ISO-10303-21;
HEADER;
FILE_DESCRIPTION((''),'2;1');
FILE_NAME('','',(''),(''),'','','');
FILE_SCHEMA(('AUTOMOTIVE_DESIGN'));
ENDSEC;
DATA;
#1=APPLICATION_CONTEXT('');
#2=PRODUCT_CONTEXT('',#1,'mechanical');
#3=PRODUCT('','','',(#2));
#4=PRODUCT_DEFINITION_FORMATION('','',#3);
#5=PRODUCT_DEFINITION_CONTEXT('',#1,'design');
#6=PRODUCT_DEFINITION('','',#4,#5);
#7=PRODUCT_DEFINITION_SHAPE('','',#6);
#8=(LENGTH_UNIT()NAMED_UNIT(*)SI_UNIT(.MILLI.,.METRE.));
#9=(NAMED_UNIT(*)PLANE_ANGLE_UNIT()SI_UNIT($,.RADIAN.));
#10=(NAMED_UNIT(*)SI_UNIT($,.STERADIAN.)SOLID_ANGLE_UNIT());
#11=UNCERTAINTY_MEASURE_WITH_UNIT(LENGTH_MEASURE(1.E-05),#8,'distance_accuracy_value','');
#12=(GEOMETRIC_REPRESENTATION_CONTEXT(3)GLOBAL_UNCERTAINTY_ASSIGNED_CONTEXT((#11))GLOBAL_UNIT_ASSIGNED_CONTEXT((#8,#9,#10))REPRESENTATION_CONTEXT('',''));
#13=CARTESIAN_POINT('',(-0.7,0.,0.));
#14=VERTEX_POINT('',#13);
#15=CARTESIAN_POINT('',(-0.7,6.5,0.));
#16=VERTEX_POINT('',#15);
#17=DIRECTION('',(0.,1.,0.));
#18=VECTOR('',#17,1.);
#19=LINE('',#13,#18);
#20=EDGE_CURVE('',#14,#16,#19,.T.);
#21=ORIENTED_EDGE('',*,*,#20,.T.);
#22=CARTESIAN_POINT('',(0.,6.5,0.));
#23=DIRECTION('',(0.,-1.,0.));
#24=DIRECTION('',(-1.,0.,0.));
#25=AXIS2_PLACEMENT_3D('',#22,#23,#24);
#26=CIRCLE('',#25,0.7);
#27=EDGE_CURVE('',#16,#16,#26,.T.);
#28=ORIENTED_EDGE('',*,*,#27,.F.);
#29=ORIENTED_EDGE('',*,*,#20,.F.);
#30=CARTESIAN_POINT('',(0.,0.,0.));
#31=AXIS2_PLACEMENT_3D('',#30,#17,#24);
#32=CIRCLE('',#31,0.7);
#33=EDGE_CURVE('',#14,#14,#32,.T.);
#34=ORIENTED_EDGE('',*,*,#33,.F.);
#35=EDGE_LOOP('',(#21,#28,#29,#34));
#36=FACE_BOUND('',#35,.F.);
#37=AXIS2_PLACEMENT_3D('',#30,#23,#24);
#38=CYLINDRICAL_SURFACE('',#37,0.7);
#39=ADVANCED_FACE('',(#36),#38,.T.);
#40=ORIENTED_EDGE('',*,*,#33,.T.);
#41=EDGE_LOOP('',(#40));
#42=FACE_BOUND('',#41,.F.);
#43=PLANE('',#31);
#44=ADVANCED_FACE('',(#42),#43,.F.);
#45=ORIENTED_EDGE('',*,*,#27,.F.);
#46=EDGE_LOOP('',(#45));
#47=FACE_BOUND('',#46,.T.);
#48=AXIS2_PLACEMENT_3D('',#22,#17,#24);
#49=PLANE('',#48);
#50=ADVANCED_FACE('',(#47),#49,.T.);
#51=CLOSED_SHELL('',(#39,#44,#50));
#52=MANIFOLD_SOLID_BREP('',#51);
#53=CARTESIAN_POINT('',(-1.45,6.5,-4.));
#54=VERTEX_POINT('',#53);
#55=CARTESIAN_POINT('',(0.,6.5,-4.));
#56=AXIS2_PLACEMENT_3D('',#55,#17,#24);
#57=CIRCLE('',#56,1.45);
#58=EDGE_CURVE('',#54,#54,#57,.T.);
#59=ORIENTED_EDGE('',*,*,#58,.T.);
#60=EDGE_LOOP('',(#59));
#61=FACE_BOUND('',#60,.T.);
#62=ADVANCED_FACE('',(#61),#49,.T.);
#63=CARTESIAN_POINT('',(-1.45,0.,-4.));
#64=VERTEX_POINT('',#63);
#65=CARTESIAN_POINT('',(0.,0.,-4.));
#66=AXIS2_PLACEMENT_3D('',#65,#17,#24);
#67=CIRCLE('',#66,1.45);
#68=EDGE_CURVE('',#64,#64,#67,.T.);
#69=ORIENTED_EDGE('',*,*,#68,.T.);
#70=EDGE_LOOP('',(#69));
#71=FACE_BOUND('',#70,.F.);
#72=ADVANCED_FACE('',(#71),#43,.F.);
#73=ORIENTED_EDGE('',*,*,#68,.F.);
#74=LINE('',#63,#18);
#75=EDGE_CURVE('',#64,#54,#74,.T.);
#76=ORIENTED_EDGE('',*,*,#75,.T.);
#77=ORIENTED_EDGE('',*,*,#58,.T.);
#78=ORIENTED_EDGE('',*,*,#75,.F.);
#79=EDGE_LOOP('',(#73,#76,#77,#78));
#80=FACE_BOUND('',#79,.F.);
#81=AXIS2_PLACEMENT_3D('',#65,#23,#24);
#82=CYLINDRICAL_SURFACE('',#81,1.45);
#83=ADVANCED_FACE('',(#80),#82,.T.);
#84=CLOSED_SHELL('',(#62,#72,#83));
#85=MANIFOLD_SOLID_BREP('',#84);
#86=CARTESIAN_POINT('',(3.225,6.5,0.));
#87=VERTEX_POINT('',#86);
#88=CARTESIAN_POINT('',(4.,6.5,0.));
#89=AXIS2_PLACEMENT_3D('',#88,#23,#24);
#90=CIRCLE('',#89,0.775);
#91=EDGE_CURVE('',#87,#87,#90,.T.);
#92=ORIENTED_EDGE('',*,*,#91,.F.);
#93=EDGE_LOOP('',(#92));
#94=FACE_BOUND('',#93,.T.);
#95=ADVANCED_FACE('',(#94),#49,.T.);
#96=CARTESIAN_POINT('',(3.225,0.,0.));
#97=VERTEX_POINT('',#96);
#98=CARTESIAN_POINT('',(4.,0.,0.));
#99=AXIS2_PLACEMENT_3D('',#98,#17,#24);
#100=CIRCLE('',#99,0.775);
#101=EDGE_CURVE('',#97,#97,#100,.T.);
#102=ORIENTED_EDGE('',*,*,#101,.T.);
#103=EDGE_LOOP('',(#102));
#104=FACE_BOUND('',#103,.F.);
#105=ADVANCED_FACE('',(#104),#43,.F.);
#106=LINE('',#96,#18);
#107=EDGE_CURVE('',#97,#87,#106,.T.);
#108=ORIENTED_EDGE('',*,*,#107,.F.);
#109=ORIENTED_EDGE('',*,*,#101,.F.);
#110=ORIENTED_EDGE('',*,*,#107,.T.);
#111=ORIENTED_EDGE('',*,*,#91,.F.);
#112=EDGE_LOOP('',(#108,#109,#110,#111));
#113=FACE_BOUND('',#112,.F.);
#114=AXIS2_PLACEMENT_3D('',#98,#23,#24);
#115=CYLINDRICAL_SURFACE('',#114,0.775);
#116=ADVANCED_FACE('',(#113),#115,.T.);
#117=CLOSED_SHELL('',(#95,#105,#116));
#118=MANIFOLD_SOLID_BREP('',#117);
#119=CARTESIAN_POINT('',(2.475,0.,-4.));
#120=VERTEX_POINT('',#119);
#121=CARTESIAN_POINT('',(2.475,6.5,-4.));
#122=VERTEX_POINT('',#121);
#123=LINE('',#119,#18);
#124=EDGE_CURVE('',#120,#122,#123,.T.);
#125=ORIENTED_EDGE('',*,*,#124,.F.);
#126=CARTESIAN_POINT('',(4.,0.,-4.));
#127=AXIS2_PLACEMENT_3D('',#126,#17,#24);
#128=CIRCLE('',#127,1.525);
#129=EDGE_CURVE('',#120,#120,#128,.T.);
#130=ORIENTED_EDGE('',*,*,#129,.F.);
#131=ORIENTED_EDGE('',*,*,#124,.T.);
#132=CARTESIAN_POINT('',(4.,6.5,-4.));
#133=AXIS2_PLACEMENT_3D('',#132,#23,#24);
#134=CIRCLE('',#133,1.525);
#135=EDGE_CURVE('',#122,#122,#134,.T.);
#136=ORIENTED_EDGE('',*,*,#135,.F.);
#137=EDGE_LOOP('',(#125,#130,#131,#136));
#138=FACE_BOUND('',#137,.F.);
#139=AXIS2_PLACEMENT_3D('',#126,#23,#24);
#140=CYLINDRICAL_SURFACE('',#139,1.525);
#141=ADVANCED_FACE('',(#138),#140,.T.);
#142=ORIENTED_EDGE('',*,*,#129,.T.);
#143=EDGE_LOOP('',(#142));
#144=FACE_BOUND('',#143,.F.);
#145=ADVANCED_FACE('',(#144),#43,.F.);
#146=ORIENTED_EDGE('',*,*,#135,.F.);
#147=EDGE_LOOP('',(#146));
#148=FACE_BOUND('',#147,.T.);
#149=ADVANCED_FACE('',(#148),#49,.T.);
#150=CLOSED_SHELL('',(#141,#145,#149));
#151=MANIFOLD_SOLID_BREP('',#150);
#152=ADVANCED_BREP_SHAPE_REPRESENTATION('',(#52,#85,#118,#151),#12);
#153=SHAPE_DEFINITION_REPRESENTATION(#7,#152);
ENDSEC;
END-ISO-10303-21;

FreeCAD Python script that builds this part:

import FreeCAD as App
import Part
import Sketcher
from FreeCAD import Vector

doc = App.newDocument("Part")
body = doc.addObject("PartDesign::Body", "Body")
body.AllowCompound = True

# Sketch on XZ plane
sketch1 = body.newObject("Sketcher::SketchObject", "Sketch")
sketch1.AttachmentSupport = (doc.getObject("XZ_Plane"), [""])
sketch1.MapMode = "FlatFace"
sketch1.addGeometry([
    Part.Circle(Vector(0, 0, 0), Vector(0, 0, 1), 0.7),
    Part.Circle(Vector(4, -4, 0), Vector(0, 0, 1), 1.5),
    Part.Circle(Vector(4, 0, 0), Vector(0, 0, 1), 0.8),
    Part.Circle(Vector(0, -4, 0), Vector(0, 0, 1), 1.4),
], False)
sketch1.addConstraint([
    Sketcher.Constraint("Coincident", 0, 3, -1, 1),
    Sketcher.Constraint("PointOnObject", 2, 3, -1),
    Sketcher.Constraint("PointOnObject", 3, 3, -2),
    Sketcher.Constraint("Horizontal", 1, 3, 3, 3),
    Sketcher.Constraint("Vertical", 1, 3, 2, 3),
    Sketcher.Constraint("Diameter", 0, 1.4),
    Sketcher.Constraint("Diameter", 3, 2.9),
    Sketcher.Constraint("Diameter", 1, 3.05),
    Sketcher.Constraint("Diameter", 2, 1.55),
    Sketcher.Constraint("DistanceX", -1, 1, 1, 3, 4.0),
    Sketcher.Constraint("DistanceY", 1, 3, -1, 1, 4.0),
])
pad1 = body.newObject("PartDesign::Pad", "Pad")
pad1.Profile = sketch1
pad1.Length = 6.5
pad1.Reversed = True

doc.recompute()
